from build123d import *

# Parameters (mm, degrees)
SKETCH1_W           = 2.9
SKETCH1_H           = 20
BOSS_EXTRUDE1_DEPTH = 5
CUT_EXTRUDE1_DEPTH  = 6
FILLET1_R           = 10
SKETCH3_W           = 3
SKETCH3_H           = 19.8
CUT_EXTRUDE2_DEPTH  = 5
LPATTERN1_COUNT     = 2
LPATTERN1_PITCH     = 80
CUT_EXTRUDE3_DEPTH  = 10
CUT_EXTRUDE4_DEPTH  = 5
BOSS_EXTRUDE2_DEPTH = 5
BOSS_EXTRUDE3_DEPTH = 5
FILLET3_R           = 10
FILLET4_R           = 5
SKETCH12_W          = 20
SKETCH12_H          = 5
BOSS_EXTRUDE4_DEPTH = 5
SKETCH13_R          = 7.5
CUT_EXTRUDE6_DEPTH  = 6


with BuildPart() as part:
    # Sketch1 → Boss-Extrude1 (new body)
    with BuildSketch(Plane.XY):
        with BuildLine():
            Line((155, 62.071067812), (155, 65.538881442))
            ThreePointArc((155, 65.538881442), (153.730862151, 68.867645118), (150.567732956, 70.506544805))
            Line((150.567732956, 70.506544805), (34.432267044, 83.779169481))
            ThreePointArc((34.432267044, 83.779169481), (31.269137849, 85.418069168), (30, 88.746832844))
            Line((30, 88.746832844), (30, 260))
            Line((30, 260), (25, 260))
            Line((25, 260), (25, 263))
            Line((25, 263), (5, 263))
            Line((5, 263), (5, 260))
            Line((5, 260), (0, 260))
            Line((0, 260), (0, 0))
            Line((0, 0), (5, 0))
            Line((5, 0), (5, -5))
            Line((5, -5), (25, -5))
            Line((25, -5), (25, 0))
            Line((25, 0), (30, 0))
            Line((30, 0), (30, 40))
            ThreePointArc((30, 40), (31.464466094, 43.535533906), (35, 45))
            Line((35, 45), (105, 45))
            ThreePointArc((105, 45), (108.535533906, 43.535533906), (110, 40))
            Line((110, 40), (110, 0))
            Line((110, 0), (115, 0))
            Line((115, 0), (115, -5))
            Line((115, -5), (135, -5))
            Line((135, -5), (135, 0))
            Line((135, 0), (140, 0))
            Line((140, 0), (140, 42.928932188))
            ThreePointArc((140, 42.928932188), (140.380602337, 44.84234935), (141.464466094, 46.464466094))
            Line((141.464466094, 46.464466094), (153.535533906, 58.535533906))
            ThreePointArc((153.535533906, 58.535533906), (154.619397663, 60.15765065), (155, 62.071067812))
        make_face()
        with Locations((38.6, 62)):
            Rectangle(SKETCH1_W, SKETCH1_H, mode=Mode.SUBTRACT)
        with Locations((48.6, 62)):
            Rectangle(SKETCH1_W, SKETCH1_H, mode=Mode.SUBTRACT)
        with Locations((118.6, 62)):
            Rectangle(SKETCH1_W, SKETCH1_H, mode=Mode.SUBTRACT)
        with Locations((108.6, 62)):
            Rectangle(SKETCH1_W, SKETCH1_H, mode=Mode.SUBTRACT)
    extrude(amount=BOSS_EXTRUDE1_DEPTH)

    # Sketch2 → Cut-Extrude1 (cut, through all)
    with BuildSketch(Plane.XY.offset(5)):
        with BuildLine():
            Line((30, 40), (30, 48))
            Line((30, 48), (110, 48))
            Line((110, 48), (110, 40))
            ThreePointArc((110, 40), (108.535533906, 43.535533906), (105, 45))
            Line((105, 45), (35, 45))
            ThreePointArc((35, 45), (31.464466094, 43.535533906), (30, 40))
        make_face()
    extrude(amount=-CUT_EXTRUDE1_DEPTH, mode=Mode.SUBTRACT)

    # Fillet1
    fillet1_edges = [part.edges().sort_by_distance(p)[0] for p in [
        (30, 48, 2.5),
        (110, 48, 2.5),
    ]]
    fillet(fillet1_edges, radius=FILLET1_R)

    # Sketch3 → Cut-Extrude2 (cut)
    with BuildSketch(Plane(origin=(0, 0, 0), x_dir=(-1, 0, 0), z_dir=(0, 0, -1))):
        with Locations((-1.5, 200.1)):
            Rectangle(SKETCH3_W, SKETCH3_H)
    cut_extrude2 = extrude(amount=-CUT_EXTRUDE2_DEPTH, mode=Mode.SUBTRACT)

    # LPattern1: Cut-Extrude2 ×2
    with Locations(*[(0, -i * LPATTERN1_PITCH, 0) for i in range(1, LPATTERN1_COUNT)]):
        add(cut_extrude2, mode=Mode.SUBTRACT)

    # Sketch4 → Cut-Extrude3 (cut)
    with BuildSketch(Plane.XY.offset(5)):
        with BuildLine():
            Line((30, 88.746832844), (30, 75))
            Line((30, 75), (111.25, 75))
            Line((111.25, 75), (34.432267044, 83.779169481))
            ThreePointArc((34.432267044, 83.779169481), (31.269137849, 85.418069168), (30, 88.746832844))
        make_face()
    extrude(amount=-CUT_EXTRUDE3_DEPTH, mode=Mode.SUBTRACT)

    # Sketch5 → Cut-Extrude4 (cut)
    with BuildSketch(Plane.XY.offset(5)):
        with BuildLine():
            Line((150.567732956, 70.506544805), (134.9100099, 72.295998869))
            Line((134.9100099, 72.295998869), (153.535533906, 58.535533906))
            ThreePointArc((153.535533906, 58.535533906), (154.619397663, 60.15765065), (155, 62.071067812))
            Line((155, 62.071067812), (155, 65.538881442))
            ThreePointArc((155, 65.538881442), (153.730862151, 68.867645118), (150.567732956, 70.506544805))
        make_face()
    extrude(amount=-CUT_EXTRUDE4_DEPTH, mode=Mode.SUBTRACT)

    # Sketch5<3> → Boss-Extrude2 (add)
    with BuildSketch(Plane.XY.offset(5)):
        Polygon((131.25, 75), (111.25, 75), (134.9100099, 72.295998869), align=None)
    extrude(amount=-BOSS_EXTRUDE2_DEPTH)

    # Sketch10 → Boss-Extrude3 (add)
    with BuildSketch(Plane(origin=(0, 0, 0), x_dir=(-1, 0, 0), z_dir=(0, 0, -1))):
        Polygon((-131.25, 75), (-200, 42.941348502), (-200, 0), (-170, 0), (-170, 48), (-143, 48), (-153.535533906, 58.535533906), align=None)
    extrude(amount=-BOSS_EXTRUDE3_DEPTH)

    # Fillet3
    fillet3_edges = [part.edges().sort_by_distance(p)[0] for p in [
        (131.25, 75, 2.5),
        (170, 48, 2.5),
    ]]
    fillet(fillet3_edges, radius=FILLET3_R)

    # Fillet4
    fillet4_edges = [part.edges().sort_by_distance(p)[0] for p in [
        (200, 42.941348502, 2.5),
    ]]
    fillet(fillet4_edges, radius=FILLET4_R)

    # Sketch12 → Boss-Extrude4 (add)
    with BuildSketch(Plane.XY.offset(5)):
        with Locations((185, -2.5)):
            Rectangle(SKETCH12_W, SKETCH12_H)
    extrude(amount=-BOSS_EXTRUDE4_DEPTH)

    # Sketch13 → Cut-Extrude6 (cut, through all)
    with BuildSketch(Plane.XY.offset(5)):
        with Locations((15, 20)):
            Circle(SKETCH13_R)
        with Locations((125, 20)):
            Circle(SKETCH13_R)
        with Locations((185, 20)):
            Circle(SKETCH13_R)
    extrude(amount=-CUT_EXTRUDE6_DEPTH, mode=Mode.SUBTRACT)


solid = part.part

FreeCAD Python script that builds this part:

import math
import FreeCAD as App
import Part
import Sketcher

V = App.Vector
Q = App.Units.Quantity


def edges_at(feature, points):
    """Names of the edges that pass closest to the given points."""
    edges = feature.Shape.Edges
    near = lambda p: min(range(len(edges)), key=lambda i: edges[i].distToShape(Part.Vertex(*p))[0])
    return sorted({f"Edge{near(p) + 1}" for p in points})

doc = App.newDocument("Part")
body = doc.addObject("PartDesign::Body", "Body")

# Sketch on XY plane
sketch1 = body.newObject("Sketcher::SketchObject", "Sketch")
sketch1.AttachmentSupport = (doc.getObject("XY_Plane"), [""])
sketch1.MapMode = "FlatFace"
sketch1.addGeometry(Part.LineSegment(V(155, 62.071068, 0), V(155, 65.538881, 0)), False)
sketch1.addGeometry(Part.ArcOfCircle(Part.Circle(V(150, 65.538881, 0), V(0, 0, 1), 5), math.radians(0), math.radians(83.480198)), False)
sketch1.addGeometry(Part.LineSegment(V(150.567733, 70.506545, 0), V(34.432267, 83.779169, 0)), False)
sketch1.addGeometry(Part.ArcOfCircle(Part.Circle(V(35, 88.746833, 0), V(0, 0, 1), 5), math.radians(180), math.radians(263.480198)), False)
sketch1.addGeometry(Part.LineSegment(V(30, 88.746833, 0), V(30, 260, 0)), False)
sketch1.addGeometry(Part.LineSegment(V(30, 260, 0), V(25, 260, 0)), False)
sketch1.addGeometry(Part.LineSegment(V(25, 260, 0), V(25, 263, 0)), False)
sketch1.addGeometry(Part.LineSegment(V(25, 263, 0), V(5, 263, 0)), False)
sketch1.addGeometry(Part.LineSegment(V(5, 263, 0), V(5, 260, 0)), False)
sketch1.addGeometry(Part.LineSegment(V(5, 260, 0), V(0, 260, 0)), False)
sketch1.addGeometry(Part.LineSegment(V(0, 260, 0), V(0, 0, 0)), False)
sketch1.addGeometry(Part.LineSegment(V(0, 0, 0), V(5, 0, 0)), False)
sketch1.addGeometry(Part.LineSegment(V(5, 0, 0), V(5, -5, 0)), False)
sketch1.addGeometry(Part.LineSegment(V(5, -5, 0), V(25, -5, 0)), False)
sketch1.addGeometry(Part.LineSegment(V(25, -5, 0), V(25, 0, 0)), False)
sketch1.addGeometry(Part.LineSegment(V(25, 0, 0), V(30, 0, 0)), False)
sketch1.addGeometry(Part.LineSegment(V(30, 0, 0), V(30, 40, 0)), False)
sketch1.addGeometry(Part.ArcOfCircle(Part.Circle(V(35, 40, 0), V(0, 0, 1), 5), math.radians(90), math.radians(180)), False)
sketch1.addGeometry(Part.LineSegment(V(35, 45, 0), V(105, 45, 0)), False)
sketch1.addGeometry(Part.ArcOfCircle(Part.Circle(V(105, 40, 0), V(0, 0, 1), 5), math.radians(0), math.radians(90)), False)
sketch1.addGeometry(Part.LineSegment(V(110, 40, 0), V(110, 0, 0)), False)
sketch1.addGeometry(Part.LineSegment(V(110, 0, 0), V(115, 0, 0)), False)
sketch1.addGeometry(Part.LineSegment(V(115, 0, 0), V(115, -5, 0)), False)
sketch1.addGeometry(Part.LineSegment(V(115, -5, 0), V(135, -5, 0)), False)
sketch1.addGeometry(Part.LineSegment(V(135, -5, 0), V(135, 0, 0)), False)
sketch1.addGeometry(Part.LineSegment(V(135, 0, 0), V(140, 0, 0)), False)
sketch1.addGeometry(Part.LineSegment(V(140, 0, 0), V(140, 42.928932, 0)), False)
sketch1.addGeometry(Part.ArcOfCircle(Part.Circle(V(145, 42.928932, 0), V(0, 0, 1), 5), math.radians(135), math.radians(180)), False)
sketch1.addGeometry(Part.LineSegment(V(141.464466, 46.464466, 0), V(153.535534, 58.535534, 0)), False)
sketch1.addGeometry(Part.ArcOfCircle(Part.Circle(V(150, 62.071068, 0), V(0, 0, 1), 5), math.radians(-45), math.radians(0)), False)
sketch1.addGeometry(Part.LineSegment(V(40.05, 52, 0), V(37.15, 52, 0)), False)
sketch1.addGeometry(Part.LineSegment(V(37.15, 52, 0), V(37.15, 72, 0)), False)
sketch1.addGeometry(Part.LineSegment(V(37.15, 72, 0), V(40.05, 72, 0)), False)
sketch1.addGeometry(Part.LineSegment(V(40.05, 72, 0), V(40.05, 52, 0)), False)
sketch1.addGeometry(Part.LineSegment(V(50.05, 52, 0), V(47.15, 52, 0)), False)
sketch1.addGeometry(Part.LineSegment(V(47.15, 52, 0), V(47.15, 72, 0)), False)
sketch1.addGeometry(Part.LineSegment(V(47.15, 72, 0), V(50.05, 72, 0)), False)
sketch1.addGeometry(Part.LineSegment(V(50.05, 72, 0), V(50.05, 52, 0)), False)
sketch1.addGeometry(Part.LineSegment(V(110.05, 52, 0), V(107.15, 52, 0)), False)
sketch1.addGeometry(Part.LineSegment(V(107.15, 52, 0), V(107.15, 72, 0)), False)
sketch1.addGeometry(Part.LineSegment(V(107.15, 72, 0), V(110.05, 72, 0)), False)
sketch1.addGeometry(Part.LineSegment(V(110.05, 72, 0), V(110.05, 52, 0)), False)
sketch1.addGeometry(Part.LineSegment(V(120.05, 52, 0), V(117.15, 52, 0)), False)
sketch1.addGeometry(Part.LineSegment(V(117.15, 52, 0), V(117.15, 72, 0)), False)
sketch1.addGeometry(Part.LineSegment(V(117.15, 72, 0), V(120.05, 72, 0)), False)
sketch1.addGeometry(Part.LineSegment(V(120.05, 72, 0), V(120.05, 52, 0)), False)
sketch1.addConstraint(Sketcher.Constraint("Tangent", 0, 2, 1, 1))
sketch1.addConstraint(Sketcher.Constraint("Tangent", 1, 2, 2, 1))
sketch1.addConstraint(Sketcher.Constraint("Tangent", 2, 2, 3, 2))
sketch1.addConstraint(Sketcher.Constraint("Tangent", 3, 1, 4, 1))
sketch1.addConstraint(Sketcher.Constraint("Coincident", 4, 2, 5, 1))
sketch1.addConstraint(Sketcher.Constraint("Coincident", 5, 2, 6, 1))
sketch1.addConstraint(Sketcher.Constraint("Coincident", 6, 2, 7, 1))
sketch1.addConstraint(Sketcher.Constraint("Coincident", 7, 2, 8, 1))
sketch1.addConstraint(Sketcher.Constraint("Coincident", 8, 2, 9, 1))
sketch1.addConstraint(Sketcher.Constraint("Coincident", 9, 2, 10, 1))
sketch1.addConstraint(Sketcher.Constraint("Coincident", 10, 2, 11, 1))
sketch1.addConstraint(Sketcher.Constraint("Coincident", 11, 2, 12, 1))
sketch1.addConstraint(Sketcher.Constraint("Coincident", 12, 2, 13, 1))
sketch1.addConstraint(Sketcher.Constraint("Coincident", 13, 2, 14, 1))
sketch1.addConstraint(Sketcher.Constraint("Coincident", 14, 2, 15, 1))
sketch1.addConstraint(Sketcher.Constraint("Coincident", 15, 2, 16, 1))
sketch1.addConstraint(Sketcher.Constraint("Tangent", 16, 2, 17, 2))
sketch1.addConstraint(Sketcher.Constraint("Tangent", 17, 1, 18, 1))
sketch1.addConstraint(Sketcher.Constraint("Tangent", 18, 2, 19, 2))
sketch1.addConstraint(Sketcher.Constraint("Tangent", 19, 1, 20, 1))
sketch1.addConstraint(Sketcher.Constraint("Coincident", 20, 2, 21, 1))
sketch1.addConstraint(Sketcher.Constraint("Coincident", 21, 2, 22, 1))
sketch1.addConstraint(Sketcher.Constraint("Coincident", 22, 2, 23, 1))
sketch1.addConstraint(Sketcher.Constraint("Coincident", 23, 2, 24, 1))
sketch1.addConstraint(Sketcher.Constraint("Coincident", 24, 2, 25, 1))
sketch1.addConstraint(Sketcher.Constraint("Coincident", 25, 2, 26, 1))
sketch1.addConstraint(Sketcher.Constraint("Tangent", 26, 2, 27, 2))
sketch1.addConstraint(Sketcher.Constraint("Tangent", 27, 1, 28, 1))
sketch1.addConstraint(Sketcher.Constraint("Tangent", 28, 2, 29, 1))
sketch1.addConstraint(Sketcher.Constraint("Tangent", 29, 2, 0, 1))
sketch1.addConstraint(Sketcher.Constraint("Coincident", 30, 2, 31, 1))
sketch1.addConstraint(Sketcher.Constraint("Coincident", 31, 2, 32, 1))
sketch1.addConstraint(Sketcher.Constraint("Coincident", 32, 2, 33, 1))
sketch1.addConstraint(Sketcher.Constraint("Coincident", 33, 2, 30, 1))
sketch1.addConstraint(Sketcher.Constraint("Coincident", 34, 2, 35, 1))
sketch1.addConstraint(Sketcher.Constraint("Coincident", 35, 2, 36, 1))
sketch1.addConstraint(Sketcher.Constraint("Coincident", 36, 2, 37, 1))
sketch1.addConstraint(Sketcher.Constraint("Coincident", 37, 2, 34, 1))
sketch1.addConstraint(Sketcher.Constraint("Coincident", 38, 2, 39, 1))
sketch1.addConstraint(Sketcher.Constraint("Coincident", 39, 2, 40, 1))
sketch1.addConstraint(Sketcher.Constraint("Coincident", 40, 2, 41, 1))
sketch1.addConstraint(Sketcher.Constraint("Coincident", 41, 2, 38, 1))
sketch1.addConstraint(Sketcher.Constraint("Coincident", 42, 2, 43, 1))
sketch1.addConstraint(Sketcher.Constraint("Coincident", 43, 2, 44, 1))
sketch1.addConstraint(Sketcher.Constraint("Coincident", 44, 2, 45, 1))
sketch1.addConstraint(Sketcher.Constraint("Coincident", 45, 2, 42, 1))
sketch1.addConstraint(Sketcher.Constraint("Vertical", 0))
sketch1.addConstraint(Sketcher.Constraint("Vertical", 4))
sketch1.addConstraint(Sketcher.Constraint("Horizontal", 5))
sketch1.addConstraint(Sketcher.Constraint("Vertical", 6))
sketch1.addConstraint(Sketcher.Constraint("Horizontal", 7))
sketch1.addConstraint(Sketcher.Constraint("Vertical", 8))
sketch1.addConstraint(Sketcher.Constraint("Horizontal", 9))
sketch1.addConstraint(Sketcher.Constraint("Vertical", 10))
sketch1.addConstraint(Sketcher.Constraint("Horizontal", 11))
sketch1.addConstraint(Sketcher.Constraint("Vertical", 12))
sketch1.addConstraint(Sketcher.Constraint("Horizontal", 13))
sketch1.addConstraint(Sketcher.Constraint("Vertical", 14))
sketch1.addConstraint(Sketcher.Constraint("Horizontal", 15))
sketch1.addConstraint(Sketcher.Constraint("Vertical", 16))
sketch1.addConstraint(Sketcher.Constraint("Horizontal", 18))
sketch1.addConstraint(Sketcher.Constraint("Vertical", 20))
sketch1.addConstraint(Sketcher.Constraint("Horizontal", 21))
sketch1.addConstraint(Sketcher.Constraint("Vertical", 22))
sketch1.addConstraint(Sketcher.Constraint("Horizontal", 23))
sketch1.addConstraint(Sketcher.Constraint("Vertical", 24))
sketch1.addConstraint(Sketcher.Constraint("Horizontal", 25))
sketch1.addConstraint(Sketcher.Constraint("Vertical", 26))
sketch1.addConstraint(Sketcher.Constraint("Horizontal", 30))
sketch1.addConstraint(Sketcher.Constraint("Vertical", 31))
sketch1.addConstraint(Sketcher.Constraint("Horizontal", 32))
sketch1.addConstraint(Sketcher.Constraint("Vertical", 33))
sketch1.addConstraint(Sketcher.Constraint("Horizontal", 34))
sketch1.addConstraint(Sketcher.Constraint("Vertical", 35))
sketch1.addConstraint(Sketcher.Constraint("Horizontal", 36))
sketch1.addConstraint(Sketcher.Constraint("Vertical", 37))
sketch1.addConstraint(Sketcher.Constraint("Horizontal", 38))
sketch1.addConstraint(Sketcher.Constraint("Vertical", 39))
sketch1.addConstraint(Sketcher.Constraint("Horizontal", 40))
sketch1.addConstraint(Sketcher.Constraint("Vertical", 41))
sketch1.addConstraint(Sketcher.Constraint("Horizontal", 42))
sketch1.addConstraint(Sketcher.Constraint("Vertical", 43))
sketch1.addConstraint(Sketcher.Constraint("Horizontal", 44))
sketch1.addConstraint(Sketcher.Constraint("Vertical", 45))
sketch1.addConstraint(Sketcher.Constraint("Coincident", 10, 2, -1, 1))
sketch1.addConstraint(Sketcher.Constraint("Equal", 1, 3))
sketch1.addConstraint(Sketcher.Constraint("Equal", 3, 17))
sketch1.addConstraint(Sketcher.Constraint("Equal", 17, 19))
sketch1.addConstraint(Sketcher.Constraint("Equal", 19, 27))
sketch1.addConstraint(Sketcher.Constraint("Equal", 27, 29))
sketch1.addConstraint(Sketcher.Constraint("PointOnObject", 14, 2, -1))
sketch1.addConstraint(Sketcher.Constraint("PointOnObject", 20, 2, -1))
sketch1.addConstraint(Sketcher.Constraint("PointOnObject", 24, 2, -1))
sketch1.addConstraint(Sketcher.Constraint("Horizontal", 5, 2, 8, 2))
sketch1.addConstraint(Sketcher.Constraint("Horizontal", 13, 2, 22, 2))
sketch1.addConstraint(Sketcher.Constraint("Horizontal", 33, 2, 34, 2))
sketch1.addConstraint(Sketcher.Constraint("Horizontal", 32, 2, 35, 2))
sketch1.addConstraint(Sketcher.Constraint("Horizontal", 37, 2, 38, 2))
sketch1.addConstraint(Sketcher.Constraint("Horizontal", 36, 2, 39, 2))
sketch1.addConstraint(Sketcher.Constraint("Horizontal", 41, 2, 42, 2))
sketch1.addConstraint(Sketcher.Constraint("Horizontal", 40, 2, 43, 2))
sketch1.addConstraint(Sketcher.Constraint("Vertical", 3, 3, 17, 3))
sketch1.addConstraint(Sketcher.Constraint("Vertical", 8, 2, 11, 2))
sketch1.addConstraint(Sketcher.Constraint("Vertical", 6, 2, 13, 2))
sketch1.addConstraint(Sketcher.Constraint("Equal", 5, 9))
sketch1.addConstraint(Sketcher.Constraint("Equal", 15, 21))
sketch1.addConstraint(Sketcher.Constraint("Equal", 13, 23))
sketch1.addConstraint(Sketcher.Constraint("Equal", 21, 25))
sketch1.addConstraint(Sketcher.Constraint("Equal", 32, 34))
sketch1.addConstraint(Sketcher.Constraint("Equal", 36, 38))
sketch1.addConstraint(Sketcher.Constraint("Equal", 40, 42))
sketch1.addConstraint(Sketcher.Constraint("Equal", 25, 12))
sketch1.addConstraint(Sketcher.Constraint("Equal", 23, 31))
sketch1.addConstraint(Sketcher.Constraint("Radius", 1, 5.0))
sketch1.addConstraint(Sketcher.Constraint("DistanceX", 5, 2, 5, 1, 5.0))
sketch1.addConstraint(Sketcher.Constraint("DistanceX", 7, 2, 7, 1, 20.0))
sketch1.addConstraint(Sketcher.Constraint("DistanceX", 18, 1, 18, 2, 70.0))
sketch1.addConstraint(Sketcher.Constraint("DistanceY", 6, 1, 6, 2, 3.0))
sketch1.addConstraint(Sketcher.Constraint("DistanceY", 10, 2, 10, 1, 260.0))
sketch1.addConstraint(Sketcher.Constraint("DistanceY", 16, 1, 16, 2, 40.0))
sketch1.addConstraint(Sketcher.Constraint("Angle", 28, Q("45 deg")))
sketch1.addConstraint(Sketcher.Constraint("DistanceX", 30, 2, 30, 1, 2.9))
sketch1.addConstraint(Sketcher.Constraint("DistanceX", -1, 1, 1, 3, 150.0))
sketch1.addConstraint(Sketcher.Constraint("DistanceY", -1, 1, 30, 2, 52.0))
sketch1.addConstraint(Sketcher.Constraint("DistanceX", 30, 2, 34, 2, 10.0))
sketch1.addConstraint(Sketcher.Constraint("DistanceX", 38, 2, 42, 2, 10.0))
sketch1.addConstraint(Sketcher.Constraint("DistanceX", -1, 1, 30, 2, 37.15))
sketch1.addConstraint(Sketcher.Constraint("DistanceX", -1, 1, 38, 2, 107.15))
sketch1.addConstraint(Sketcher.Constraint("DistanceY", 27, 3, 3, 3, 45.817901))
sketch1.addConstraint(Sketcher.Constraint("DistanceX", 1, 2, 28, 2, 2.967801))
sketch1.addConstraint(Sketcher.Constraint("DistanceY", 4, 1, 4, 2, 171.253167))
pad1 = body.newObject("PartDesign::Pad", "Pad")
pad1.Profile = sketch1
pad1.Length = 5

# Sketch on XY plane
sketch2 = body.newObject("Sketcher::SketchObject", "Sketch001")
sketch2.AttachmentSupport = (doc.getObject("XY_Plane"), [""])
sketch2.MapMode = "FlatFace"
sketch2.AttachmentOffset = App.Placement(V(0, 0, 5), App.Rotation())
sketch2.addGeometry(Part.LineSegment(V(30, 48, 0), V(30, 40, 0)), False)
sketch2.addGeometry(Part.ArcOfCircle(Part.Circle(V(35, 40, 0), V(0, 0, 1), 5), math.radians(90), math.radians(180)), False)
sketch2.addGeometry(Part.LineSegment(V(35, 45, 0), V(105, 45, 0)), False)
sketch2.addGeometry(Part.ArcOfCircle(Part.Circle(V(105, 40, 0), V(0, 0, 1), 5), math.radians(0), math.radians(90)), False)
sketch2.addGeometry(Part.LineSegment(V(110, 40, 0), V(110, 48, 0)), False)
sketch2.addGeometry(Part.LineSegment(V(110, 48, 0), V(30, 48, 0)), False)
sketch2.addConstraint(Sketcher.Constraint("Tangent", 0, 2, 1, 2))
sketch2.addConstraint(Sketcher.Constraint("Tangent", 1, 1, 2, 1))
sketch2.addConstraint(Sketcher.Constraint("Tangent", 2, 2, 3, 2))
sketch2.addConstraint(Sketcher.Constraint("Tangent", 3, 1, 4, 1))
sketch2.addConstraint(Sketcher.Constraint("Coincident", 4, 2, 5, 1))
sketch2.addConstraint(Sketcher.Constraint("Coincident", 5, 2, 0, 1))
sketch2.addConstraint(Sketcher.Constraint("Vertical", 0))
sketch2.addConstraint(Sketcher.Constraint("Horizontal", 2))
sketch2.addConstraint(Sketcher.Constraint("Vertical", 4))
sketch2.addConstraint(Sketcher.Constraint("Horizontal", 5))
sketch2.addConstraint(Sketcher.Constraint("Equal", 1, 3))
sketch2.addConstraint(Sketcher.Constraint("Radius", 1, 5.0))
sketch2.addConstraint(Sketcher.Constraint("DistanceX", 2, 1, 2, 2, 70.0))
sketch2.addConstraint(Sketcher.Constraint("DistanceY", 0, 2, 0, 1, 8.0))
sketch2.addConstraint(Sketcher.Constraint("DistanceX", -1, 1, 1, 3, 35.0))
sketch2.addConstraint(Sketcher.Constraint("DistanceY", -1, 1, 1, 3, 40.0))
pocket1 = body.newObject("PartDesign::Pocket", "Pocket")
pocket1.Profile = sketch2
pocket1.Type = "ThroughAll"
doc.recompute()

fillet = body.newObject("PartDesign::Fillet", "Fillet")
fillet.Base = (pocket1, edges_at(pocket1, [(30, 48, 2.5), (110, 48, 2.5)]))
fillet.Radius = 10

# Sketch on XY plane
sketch3 = body.newObject("Sketcher::SketchObject", "Sketch002")
sketch3.AttachmentSupport = (doc.getObject("XY_Plane"), [""])
sketch3.MapMode = "FlatFace"
sketch3.addGeometry(Part.LineSegment(V(3, 210, 0), V(3, 190.2, 0)), False)
sketch3.addGeometry(Part.LineSegment(V(3, 190.2, 0), V(0, 190.2, 0)), False)
sketch3.addGeometry(Part.LineSegment(V(0, 190.2, 0), V(0, 210, 0)), False)
sketch3.addGeometry(Part.LineSegment(V(0, 210, 0), V(3, 210, 0)), False)
sketch3.addConstraint(Sketcher.Constraint("Coincident", 0, 2, 1, 1))
sketch3.addConstraint(Sketcher.Constraint("Coincident", 1, 2, 2, 1))
sketch3.addConstraint(Sketcher.Constraint("Coincident", 2, 2, 3, 1))
sketch3.addConstraint(Sketcher.Constraint("Coincident", 3, 2, 0, 1))
sketch3.addConstraint(Sketcher.Constraint("Vertical", 0))
sketch3.addConstraint(Sketcher.Constraint("Horizontal", 1))
sketch3.addConstraint(Sketcher.Constraint("Vertical", 2))
sketch3.addConstraint(Sketcher.Constraint("Horizontal", 3))
sketch3.addConstraint(Sketcher.Constraint("PointOnObject", 1, 2, -2))
sketch3.addConstraint(Sketcher.Constraint("DistanceX", 1, 2, 1, 1, 3.0))
sketch3.addConstraint(Sketcher.Constraint("DistanceY", 0, 2, 0, 1, 19.8))
sketch3.addConstraint(Sketcher.Constraint("DistanceY", -1, 1, 2, 2, 210.0))
pocket2 = body.newObject("PartDesign::Pocket", "Pocket001")
pocket2.Profile = sketch3
pocket2.Length = 5
pocket2.Reversed = True
doc.recompute()

linearpattern = body.newObject("PartDesign::LinearPattern", "LinearPattern")
linearpattern.Originals = [pocket2]
linearpattern.Direction = (doc.getObject("Y_Axis"), [""])
linearpattern.Mode = "offset"
linearpattern.Offset = 80
linearpattern.Occurrences = 2
linearpattern.Reversed = True
body.Tip = linearpattern

# Sketch on XY plane
sketch4 = body.newObject("Sketcher::SketchObject", "Sketch003")
sketch4.AttachmentSupport = (doc.getObject("XY_Plane"), [""])
sketch4.MapMode = "FlatFace"
sketch4.AttachmentOffset = App.Placement(V(0, 0, 5), App.Rotation())
sketch4.addGeometry(Part.LineSegment(V(30, 88.746833, 0), V(30, 75, 0)), False)
sketch4.addGeometry(Part.LineSegment(V(30, 75, 0), V(111.25, 75, 0)), False)
sketch4.addGeometry(Part.LineSegment(V(111.25, 75, 0), V(34.432267, 83.779169, 0)), False)
sketch4.addGeometry(Part.ArcOfCircle(Part.Circle(V(35, 88.746833, 0), V(0, 0, 1), 5), math.radians(180), math.radians(263.480198)), False)
sketch4.addConstraint(Sketcher.Constraint("Coincident", 0, 2, 1, 1))
sketch4.addConstraint(Sketcher.Constraint("Coincident", 1, 2, 2, 1))
sketch4.addConstraint(Sketcher.Constraint("Tangent", 2, 2, 3, 2))
sketch4.addConstraint(Sketcher.Constraint("Tangent", 3, 1, 0, 1))
sketch4.addConstraint(Sketcher.Constraint("Vertical", 0))
sketch4.addConstraint(Sketcher.Constraint("Horizontal", 1))
sketch4.addConstraint(Sketcher.Constraint("Radius", 3, 5.0))
sketch4.addConstraint(Sketcher.Constraint("DistanceX", -1, 1, 3, 3, 35.0))
sketch4.addConstraint(Sketcher.Constraint("DistanceY", -1, 1, 0, 2, 75.0))
sketch4.addConstraint(Sketcher.Constraint("DistanceX", 1, 1, 1, 2, 81.25))
sketch4.addConstraint(Sketcher.Constraint("DistanceY", 0, 2, 0, 1, 13.746833))
pocket3 = body.newObject("PartDesign::Pocket", "Pocket002")
pocket3.Profile = sketch4
pocket3.Length = 10

# Sketch on XY plane
sketch5 = body.newObject("Sketcher::SketchObject", "Sketch004")
sketch5.AttachmentSupport = (doc.getObject("XY_Plane"), [""])
sketch5.MapMode = "FlatFace"
sketch5.AttachmentOffset = App.Placement(V(0, 0, 5), App.Rotation())
sketch5.addGeometry(Part.LineSegment(V(150.567733, 70.506545, 0), V(134.91001, 72.295999, 0)), False)
sketch5.addGeometry(Part.LineSegment(V(134.91001, 72.295999, 0), V(153.535534, 58.535534, 0)), False)
sketch5.addGeometry(Part.ArcOfCircle(Part.Circle(V(150, 62.071068, 0), V(0, 0, 1), 5), math.radians(-45), math.radians(0)), False)
sketch5.addGeometry(Part.LineSegment(V(155, 62.071068, 0), V(155, 65.538881, 0)), False)
sketch5.addGeometry(Part.ArcOfCircle(Part.Circle(V(150, 65.538881, 0), V(0, 0, 1), 5), math.radians(0), math.radians(83.480198)), False)
sketch5.addConstraint(Sketcher.Constraint("Coincident", 0, 2, 1, 1))
sketch5.addConstraint(Sketcher.Constraint("Coincident", 1, 2, 2, 1))
sketch5.addConstraint(Sketcher.Constraint("Tangent", 2, 2, 3, 1))
sketch5.addConstraint(Sketcher.Constraint("Tangent", 3, 2, 4, 1))
sketch5.addConstraint(Sketcher.Constraint("Tangent", 4, 2, 0, 1))
sketch5.addConstraint(Sketcher.Constraint("Vertical", 3))
sketch5.addConstraint(Sketcher.Constraint("Equal", 2, 4))
sketch5.addConstraint(Sketcher.Constraint("Radius", 2, 5.0))
sketch5.addConstraint(Sketcher.Constraint("DistanceX", -1, 1, 2, 3, 150.0))
sketch5.addConstraint(Sketcher.Constraint("DistanceY", -1, 1, 0, 2, 72.295999))
sketch5.addConstraint(Sketcher.Constraint("Distance", 1, 23.1573))
sketch5.addConstraint(Sketcher.Constraint("DistanceX", 4, 2, 1, 2, 2.967801))
sketch5.addConstraint(Sketcher.Constraint("DistanceY", 3, 1, 3, 2, 3.467814))
sketch5.addConstraint(Sketcher.Constraint("DistanceY", -1, 1, 4, 3, 65.538881))
pocket4 = body.newObject("PartDesign::Pocket", "Pocket003")
pocket4.Profile = sketch5
pocket4.Length = 5

# Sketch on XY plane
sketch6 = body.newObject("Sketcher::SketchObject", "Sketch005")
sketch6.AttachmentSupport = (doc.getObject("XY_Plane"), [""])
sketch6.MapMode = "FlatFace"
sketch6.AttachmentOffset = App.Placement(V(0, 0, 5), App.Rotation())
sketch6.addGeometry(Part.LineSegment(V(131.25, 75, 0), V(111.25, 75, 0)), False)
sketch6.addGeometry(Part.LineSegment(V(111.25, 75, 0), V(134.91001, 72.295999, 0)), False)
sketch6.addGeometry(Part.LineSegment(V(134.91001, 72.295999, 0), V(131.25, 75, 0)), False)
sketch6.addConstraint(Sketcher.Constraint("Coincident", 0, 2, 1, 1))
sketch6.addConstraint(Sketcher.Constraint("Coincident", 1, 2, 2, 1))
sketch6.addConstraint(Sketcher.Constraint("Coincident", 2, 2, 0, 1))
sketch6.addConstraint(Sketcher.Constraint("Horizontal", 0))
sketch6.addConstraint(Sketcher.Constraint("DistanceX", 0, 2, 0, 1, 20.0))
sketch6.addConstraint(Sketcher.Constraint("DistanceY", -1, 1, 0, 2, 75.0))
sketch6.addConstraint(Sketcher.Constraint("DistanceX", -1, 1, 0, 2, 111.25))
sketch6.addConstraint(Sketcher.Constraint("DistanceY", -1, 1, 1, 2, 72.295999))
sketch6.addConstraint(Sketcher.Constraint("DistanceX", -1, 1, 1, 2, 134.91001))
pad2 = body.newObject("PartDesign::Pad", "Pad001")
pad2.Profile = sketch6
pad2.Length = 5
pad2.Reversed = True

# Sketch on XY plane
sketch7 = body.newObject("Sketcher::SketchObject", "Sketch006")
sketch7.AttachmentSupport = (doc.getObject("XY_Plane"), [""])
sketch7.MapMode = "FlatFace"
sketch7.addGeometry(Part.LineSegment(V(131.25, 75, 0), V(200, 42.941349, 0)), False)
sketch7.addGeometry(Part.LineSegment(V(200, 42.941349, 0), V(200, 0, 0)), False)
sketch7.addGeometry(Part.LineSegment(V(200, 0, 0), V(170, 0, 0)), False)
sketch7.addGeometry(Part.LineSegment(V(170, 0, 0), V(170, 48, 0)), False)
sketch7.addGeometry(Part.LineSegment(V(170, 48, 0), V(143, 48, 0)), False)
sketch7.addGeometry(Part.LineSegment(V(143, 48, 0), V(153.535534, 58.535534, 0)), False)
sketch7.addGeometry(Part.LineSegment(V(153.535534, 58.535534, 0), V(131.25, 75, 0)), False)
sketch7.addConstraint(Sketcher.Constraint("Coincident", 0, 2, 1, 1))
sketch7.addConstraint(Sketcher.Constraint("Coincident", 1, 2, 2, 1))
sketch7.addConstraint(Sketcher.Constraint("Coincident", 2, 2, 3, 1))
sketch7.addConstraint(Sketcher.Constraint("Coincident", 3, 2, 4, 1))
sketch7.addConstraint(Sketcher.Constraint("Coincident", 4, 2, 5, 1))
sketch7.addConstraint(Sketcher.Constraint("Coincident", 5, 2, 6, 1))
sketch7.addConstraint(Sketcher.Constraint("Coincident", 6, 2, 0, 1))
sketch7.addConstraint(Sketcher.Constraint("Vertical", 1))
sketch7.addConstraint(Sketcher.Constraint("Horizontal", 2))
sketch7.addConstraint(Sketcher.Constraint("Vertical", 3))
sketch7.addConstraint(Sketcher.Constraint("Horizontal", 4))
sketch7.addConstraint(Sketcher.Constraint("PointOnObject", 1, 2, -1))
sketch7.addConstraint(Sketcher.Constraint("DistanceX", 2, 2, 2, 1, 30.0))
sketch7.addConstraint(Sketcher.Constraint("DistanceX", 4, 2, 4, 1, 27.0))
sketch7.addConstraint(Sketcher.Constraint("DistanceY", 3, 1, 3, 2, 48.0))
sketch7.addConstraint(Sketcher.Constraint("Angle", 0, Q("-25 deg")))
sketch7.addConstraint(Sketcher.Constraint("Angle", 5, Q("45 deg")))
sketch7.addConstraint(Sketcher.Constraint("DistanceX", -1, 1, 0, 2, 200.0))
sketch7.addConstraint(Sketcher.Constraint("DistanceY", -1, 1, 6, 2, 75.0))
sketch7.addConstraint(Sketcher.Constraint("DistanceX", -1, 1, 6, 2, 131.25))
sketch7.addConstraint(Sketcher.Constraint("Distance", 5, 14.899495))
pad3 = body.newObject("PartDesign::Pad", "Pad002")
pad3.Profile = sketch7
pad3.Length = 5
doc.recompute()

fillet2 = body.newObject("PartDesign::Fillet", "Fillet001")
fillet2.Base = (pad3, edges_at(pad3, [(131.25, 75, 2.5), (170, 48, 2.5)]))
fillet2.Radius = 10
doc.recompute()

fillet3 = body.newObject("PartDesign::Fillet", "Fillet002")
fillet3.Base = (fillet2, edges_at(fillet2, [(200, 42.941, 2.5)]))
fillet3.Radius = 5

# Sketch on XY plane
sketch8 = body.newObject("Sketcher::SketchObject", "Sketch007")
sketch8.AttachmentSupport = (doc.getObject("XY_Plane"), [""])
sketch8.MapMode = "FlatFace"
sketch8.AttachmentOffset = App.Placement(V(0, 0, 5), App.Rotation())
sketch8.addGeometry(Part.LineSegment(V(175, 0, 0), V(175, -5, 0)), False)
sketch8.addGeometry(Part.LineSegment(V(175, -5, 0), V(195, -5, 0)), False)
sketch8.addGeometry(Part.LineSegment(V(195, -5, 0), V(195, 0, 0)), False)
sketch8.addGeometry(Part.LineSegment(V(195, 0, 0), V(175, 0, 0)), False)
sketch8.addConstraint(Sketcher.Constraint("Coincident", 0, 2, 1, 1))
sketch8.addConstraint(Sketcher.Constraint("Coincident", 1, 2, 2, 1))
sketch8.addConstraint(Sketcher.Constraint("Coincident", 2, 2, 3, 1))
sketch8.addConstraint(Sketcher.Constraint("Coincident", 3, 2, 0, 1))
sketch8.addConstraint(Sketcher.Constraint("Vertical", 0))
sketch8.addConstraint(Sketcher.Constraint("Horizontal", 1))
sketch8.addConstraint(Sketcher.Constraint("Vertical", 2))
sketch8.addConstraint(Sketcher.Constraint("Horizontal", 3))
sketch8.addConstraint(Sketcher.Constraint("PointOnObject", 2, 2, -1))
sketch8.addConstraint(Sketcher.Constraint("DistanceX", 1, 1, 1, 2, 20.0))
sketch8.addConstraint(Sketcher.Constraint("DistanceY", 0, 2, 0, 1, 5.0))
sketch8.addConstraint(Sketcher.Constraint("DistanceX", -1, 1, 0, 2, 175.0))
pad4 = body.newObject("PartDesign::Pad", "Pad003")
pad4.Profile = sketch8
pad4.Length = 5
pad4.Reversed = True

# Sketch on XY plane
sketch9 = body.newObject("Sketcher::SketchObject", "Sketch008")
sketch9.AttachmentSupport = (doc.getObject("XY_Plane"), [""])
sketch9.MapMode = "FlatFace"
sketch9.AttachmentOffset = App.Placement(V(0, 0, 5), App.Rotation())
sketch9.addGeometry(Part.Circle(V(15, 20, 0), V(0, 0, 1), 7.5), False)
sketch9.addGeometry(Part.Circle(V(125, 20, 0), V(0, 0, 1), 7.5), False)
sketch9.addGeometry(Part.Circle(V(185, 20, 0), V(0, 0, 1), 7.5), False)
sketch9.addConstraint(Sketcher.Constraint("Equal", 0, 1))
sketch9.addConstraint(Sketcher.Constraint("Equal", 1, 2))
sketch9.addConstraint(Sketcher.Constraint("Horizontal", 0, 3, 1, 3))
sketch9.addConstraint(Sketcher.Constraint("Horizontal", 1, 3, 2, 3))
sketch9.addConstraint(Sketcher.Constraint("Diameter", 0, 15.0))
sketch9.addConstraint(Sketcher.Constraint("DistanceX", -1, 1, 0, 3, 15.0))
sketch9.addConstraint(Sketcher.Constraint("DistanceY", -1, 1, 0, 3, 20.0))
sketch9.addConstraint(Sketcher.Constraint("DistanceX", -1, 1, 1, 3, 125.0))
sketch9.addConstraint(Sketcher.Constraint("DistanceX", -1, 1, 2, 3, 185.0))
pocket5 = body.newObject("PartDesign::Pocket", "Pocket004")
pocket5.Profile = sketch9
pocket5.Type = "ThroughAll"

doc.recompute()
